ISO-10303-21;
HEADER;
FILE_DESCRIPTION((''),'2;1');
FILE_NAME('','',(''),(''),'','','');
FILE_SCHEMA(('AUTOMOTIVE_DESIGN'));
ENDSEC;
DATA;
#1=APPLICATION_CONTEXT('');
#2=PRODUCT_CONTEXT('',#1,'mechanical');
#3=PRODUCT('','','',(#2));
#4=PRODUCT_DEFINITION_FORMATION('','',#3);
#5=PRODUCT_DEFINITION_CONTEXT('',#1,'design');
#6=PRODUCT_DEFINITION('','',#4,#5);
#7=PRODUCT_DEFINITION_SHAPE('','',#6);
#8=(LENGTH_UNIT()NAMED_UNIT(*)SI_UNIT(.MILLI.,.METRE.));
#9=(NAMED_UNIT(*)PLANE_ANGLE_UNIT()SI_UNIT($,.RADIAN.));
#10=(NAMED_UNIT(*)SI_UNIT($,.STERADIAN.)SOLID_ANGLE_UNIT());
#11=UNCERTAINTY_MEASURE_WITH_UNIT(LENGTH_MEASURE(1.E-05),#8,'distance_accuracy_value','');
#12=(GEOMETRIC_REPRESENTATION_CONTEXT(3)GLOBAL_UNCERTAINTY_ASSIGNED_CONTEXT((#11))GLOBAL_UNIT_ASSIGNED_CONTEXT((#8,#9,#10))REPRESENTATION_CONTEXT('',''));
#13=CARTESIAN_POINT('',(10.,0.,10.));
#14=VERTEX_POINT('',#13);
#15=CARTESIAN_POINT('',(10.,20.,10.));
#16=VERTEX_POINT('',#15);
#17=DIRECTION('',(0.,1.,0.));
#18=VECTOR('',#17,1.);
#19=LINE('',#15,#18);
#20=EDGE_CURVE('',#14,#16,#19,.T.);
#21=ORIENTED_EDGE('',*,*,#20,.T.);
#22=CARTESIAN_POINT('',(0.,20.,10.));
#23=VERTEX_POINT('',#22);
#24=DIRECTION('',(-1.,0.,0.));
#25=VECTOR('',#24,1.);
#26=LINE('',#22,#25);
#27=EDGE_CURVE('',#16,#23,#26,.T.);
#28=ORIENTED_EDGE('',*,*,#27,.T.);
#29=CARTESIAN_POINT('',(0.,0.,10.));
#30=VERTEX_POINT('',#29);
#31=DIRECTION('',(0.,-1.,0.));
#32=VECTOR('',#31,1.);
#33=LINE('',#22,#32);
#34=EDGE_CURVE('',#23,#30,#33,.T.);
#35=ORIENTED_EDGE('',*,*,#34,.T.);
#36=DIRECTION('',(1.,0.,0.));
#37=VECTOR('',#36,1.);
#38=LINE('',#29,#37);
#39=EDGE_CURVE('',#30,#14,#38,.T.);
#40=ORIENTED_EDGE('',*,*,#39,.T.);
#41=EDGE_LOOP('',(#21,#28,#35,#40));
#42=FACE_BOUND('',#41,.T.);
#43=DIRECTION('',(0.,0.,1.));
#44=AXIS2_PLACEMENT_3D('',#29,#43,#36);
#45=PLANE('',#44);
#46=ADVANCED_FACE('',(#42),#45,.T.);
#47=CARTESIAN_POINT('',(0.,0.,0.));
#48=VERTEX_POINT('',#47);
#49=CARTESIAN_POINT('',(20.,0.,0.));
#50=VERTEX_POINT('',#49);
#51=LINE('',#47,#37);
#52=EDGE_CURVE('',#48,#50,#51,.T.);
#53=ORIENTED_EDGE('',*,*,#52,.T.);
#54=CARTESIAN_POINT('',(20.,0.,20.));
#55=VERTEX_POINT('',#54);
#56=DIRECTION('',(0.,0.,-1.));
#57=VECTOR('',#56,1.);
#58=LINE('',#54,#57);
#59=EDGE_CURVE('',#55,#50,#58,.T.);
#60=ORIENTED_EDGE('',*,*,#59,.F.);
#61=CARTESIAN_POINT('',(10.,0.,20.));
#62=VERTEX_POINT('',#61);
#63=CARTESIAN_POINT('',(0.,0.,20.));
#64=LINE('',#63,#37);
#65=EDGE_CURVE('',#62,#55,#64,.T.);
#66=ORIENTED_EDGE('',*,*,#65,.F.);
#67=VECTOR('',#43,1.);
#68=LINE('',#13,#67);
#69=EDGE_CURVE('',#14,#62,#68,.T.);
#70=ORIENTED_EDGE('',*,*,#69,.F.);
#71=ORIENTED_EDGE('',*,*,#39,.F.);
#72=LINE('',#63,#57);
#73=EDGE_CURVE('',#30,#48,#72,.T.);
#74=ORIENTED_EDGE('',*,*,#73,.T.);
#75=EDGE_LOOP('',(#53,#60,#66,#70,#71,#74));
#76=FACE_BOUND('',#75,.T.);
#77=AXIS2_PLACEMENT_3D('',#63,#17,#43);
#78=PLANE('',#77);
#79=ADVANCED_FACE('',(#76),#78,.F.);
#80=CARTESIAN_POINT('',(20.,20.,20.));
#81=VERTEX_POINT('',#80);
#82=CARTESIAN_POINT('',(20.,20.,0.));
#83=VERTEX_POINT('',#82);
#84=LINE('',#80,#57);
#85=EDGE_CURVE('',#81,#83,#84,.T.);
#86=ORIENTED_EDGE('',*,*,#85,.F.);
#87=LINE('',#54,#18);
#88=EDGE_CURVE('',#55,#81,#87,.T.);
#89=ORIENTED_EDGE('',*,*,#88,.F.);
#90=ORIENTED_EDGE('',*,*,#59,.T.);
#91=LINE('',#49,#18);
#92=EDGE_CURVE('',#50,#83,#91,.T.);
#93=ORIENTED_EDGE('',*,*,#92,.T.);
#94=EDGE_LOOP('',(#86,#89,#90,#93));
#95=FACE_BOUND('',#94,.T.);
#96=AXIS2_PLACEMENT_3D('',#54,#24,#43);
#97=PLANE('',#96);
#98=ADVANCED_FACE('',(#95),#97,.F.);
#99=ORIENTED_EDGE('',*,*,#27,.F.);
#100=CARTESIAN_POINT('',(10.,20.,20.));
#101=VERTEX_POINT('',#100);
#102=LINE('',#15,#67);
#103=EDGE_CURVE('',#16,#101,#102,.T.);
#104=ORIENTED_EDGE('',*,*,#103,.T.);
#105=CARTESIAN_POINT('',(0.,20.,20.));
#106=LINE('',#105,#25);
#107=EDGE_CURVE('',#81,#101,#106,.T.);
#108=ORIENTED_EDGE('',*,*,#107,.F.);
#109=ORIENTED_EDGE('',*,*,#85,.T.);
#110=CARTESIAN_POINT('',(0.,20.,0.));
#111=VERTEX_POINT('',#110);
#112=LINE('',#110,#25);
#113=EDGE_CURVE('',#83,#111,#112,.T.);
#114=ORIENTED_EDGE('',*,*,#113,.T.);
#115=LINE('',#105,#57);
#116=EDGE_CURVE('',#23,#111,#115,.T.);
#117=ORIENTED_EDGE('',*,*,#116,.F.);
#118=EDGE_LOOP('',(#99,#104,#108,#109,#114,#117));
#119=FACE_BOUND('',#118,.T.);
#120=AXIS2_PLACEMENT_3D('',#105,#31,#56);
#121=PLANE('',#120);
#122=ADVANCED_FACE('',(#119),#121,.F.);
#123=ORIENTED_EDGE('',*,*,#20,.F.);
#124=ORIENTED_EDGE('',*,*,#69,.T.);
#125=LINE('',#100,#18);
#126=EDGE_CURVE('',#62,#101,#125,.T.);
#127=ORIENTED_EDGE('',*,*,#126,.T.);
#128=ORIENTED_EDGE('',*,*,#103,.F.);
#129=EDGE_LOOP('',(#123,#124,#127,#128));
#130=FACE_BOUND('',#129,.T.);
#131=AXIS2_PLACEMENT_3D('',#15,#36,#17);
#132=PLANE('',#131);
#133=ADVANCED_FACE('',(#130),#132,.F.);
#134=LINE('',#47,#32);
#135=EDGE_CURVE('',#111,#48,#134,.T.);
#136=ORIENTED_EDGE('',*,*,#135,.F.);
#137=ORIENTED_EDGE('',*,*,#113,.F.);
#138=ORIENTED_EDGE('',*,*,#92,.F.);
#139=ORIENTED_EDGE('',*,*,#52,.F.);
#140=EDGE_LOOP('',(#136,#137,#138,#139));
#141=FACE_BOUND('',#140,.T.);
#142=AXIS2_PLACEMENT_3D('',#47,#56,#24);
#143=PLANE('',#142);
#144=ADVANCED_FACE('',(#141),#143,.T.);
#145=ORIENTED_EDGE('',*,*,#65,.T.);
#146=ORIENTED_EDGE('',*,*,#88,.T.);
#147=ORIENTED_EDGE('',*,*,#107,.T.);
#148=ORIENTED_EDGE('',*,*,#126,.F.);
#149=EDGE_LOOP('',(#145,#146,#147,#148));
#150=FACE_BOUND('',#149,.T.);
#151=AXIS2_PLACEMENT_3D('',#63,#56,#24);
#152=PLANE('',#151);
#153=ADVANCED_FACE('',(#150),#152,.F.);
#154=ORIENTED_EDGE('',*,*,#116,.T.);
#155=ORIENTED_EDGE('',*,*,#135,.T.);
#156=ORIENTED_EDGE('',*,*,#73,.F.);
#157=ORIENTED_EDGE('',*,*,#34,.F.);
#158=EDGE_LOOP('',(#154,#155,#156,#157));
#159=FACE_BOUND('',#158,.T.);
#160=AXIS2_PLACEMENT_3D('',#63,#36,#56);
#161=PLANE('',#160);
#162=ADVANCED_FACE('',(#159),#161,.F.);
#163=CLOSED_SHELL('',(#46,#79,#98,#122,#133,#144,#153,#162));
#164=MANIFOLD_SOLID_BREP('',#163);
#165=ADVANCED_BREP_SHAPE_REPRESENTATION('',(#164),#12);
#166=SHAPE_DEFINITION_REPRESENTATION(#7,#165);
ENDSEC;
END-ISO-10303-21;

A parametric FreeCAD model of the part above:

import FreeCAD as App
import Part
import Sketcher

doc = App.newDocument("Part")
body = doc.addObject("PartDesign::Body", "Body")

# Sketch on XY plane
sketch1 = doc.addObject("Sketcher::SketchObject", "Sketch")
body.addObject(sketch1)
sketch1.AttachmentSupport = (doc.XY_Plane, [""])
sketch1.MapMode = "FlatFace"
sketch1.addGeometry(Part.LineSegment(App.Vector(0, 20, 0), App.Vector(0, 0, 0)), False)
sketch1.addGeometry(Part.LineSegment(App.Vector(0, 0, 0), App.Vector(20, 0, 0)), False)
sketch1.addGeometry(Part.LineSegment(App.Vector(20, 0, 0), App.Vector(20, 20, 0)), False)
sketch1.addGeometry(Part.LineSegment(App.Vector(20, 20, 0), App.Vector(0, 20, 0)), False)
sketch1.addConstraint(Sketcher.Constraint("Coincident", 0, 2, 1, 1))
sketch1.addConstraint(Sketcher.Constraint("Coincident", 1, 2, 2, 1))
sketch1.addConstraint(Sketcher.Constraint("Coincident", 2, 2, 3, 1))
sketch1.addConstraint(Sketcher.Constraint("Coincident", 3, 2, 0, 1))
sketch1.addConstraint(Sketcher.Constraint("Vertical", 0))
sketch1.addConstraint(Sketcher.Constraint("Horizontal", 1))
sketch1.addConstraint(Sketcher.Constraint("Vertical", 2))
sketch1.addConstraint(Sketcher.Constraint("Horizontal", 3))
sketch1.addConstraint(Sketcher.Constraint("Coincident", 0, 2, -1, 1))
sketch1.addConstraint(Sketcher.Constraint("Equal", 3, 0))
sketch1.addConstraint(Sketcher.Constraint("DistanceX", 1, 1, 1, 2, 20.0))
pad1 = doc.addObject("PartDesign::Pad", "Pad")
body.addObject(pad1)
pad1.Profile = sketch1
pad1.Length = 20

# Sketch on XY plane
sketch2 = doc.addObject("Sketcher::SketchObject", "Sketch001")
body.addObject(sketch2)
sketch2.AttachmentSupport = (doc.XY_Plane, [""])
sketch2.MapMode = "FlatFace"
sketch2.AttachmentOffset = App.Placement(App.Vector(0, 0, 20), App.Rotation())
sketch2.addGeometry(Part.LineSegment(App.Vector(0, 20, 0), App.Vector(0, 0, 0)), False)
sketch2.addGeometry(Part.LineSegment(App.Vector(0, 0, 0), App.Vector(10, 0, 0)), False)
sketch2.addGeometry(Part.LineSegment(App.Vector(10, 0, 0), App.Vector(10, 20, 0)), False)
sketch2.addGeometry(Part.LineSegment(App.Vector(10, 20, 0), App.Vector(0, 20, 0)), False)
sketch2.addConstraint(Sketcher.Constraint("Coincident", 0, 2, 1, 1))
sketch2.addConstraint(Sketcher.Constraint("Coincident", 1, 2, 2, 1))
sketch2.addConstraint(Sketcher.Constraint("Coincident", 2, 2, 3, 1))
sketch2.addConstraint(Sketcher.Constraint("Coincident", 3, 2, 0, 1))
sketch2.addConstraint(Sketcher.Constraint("Vertical", 0))
sketch2.addConstraint(Sketcher.Constraint("Horizontal", 1))
sketch2.addConstraint(Sketcher.Constraint("Vertical", 2))
sketch2.addConstraint(Sketcher.Constraint("Horizontal", 3))
sketch2.addConstraint(Sketcher.Constraint("Coincident", 0, 2, -1, 1))
sketch2.addConstraint(Sketcher.Constraint("DistanceX", 1, 1, 1, 2, 10.0))
sketch2.addConstraint(Sketcher.Constraint("DistanceY", 0, 2, 0, 1, 20.0))
pocket1 = doc.addObject("PartDesign::Pocket", "Pocket")
body.addObject(pocket1)
pocket1.Profile = sketch2
pocket1.Length = 10

doc.recompute()
